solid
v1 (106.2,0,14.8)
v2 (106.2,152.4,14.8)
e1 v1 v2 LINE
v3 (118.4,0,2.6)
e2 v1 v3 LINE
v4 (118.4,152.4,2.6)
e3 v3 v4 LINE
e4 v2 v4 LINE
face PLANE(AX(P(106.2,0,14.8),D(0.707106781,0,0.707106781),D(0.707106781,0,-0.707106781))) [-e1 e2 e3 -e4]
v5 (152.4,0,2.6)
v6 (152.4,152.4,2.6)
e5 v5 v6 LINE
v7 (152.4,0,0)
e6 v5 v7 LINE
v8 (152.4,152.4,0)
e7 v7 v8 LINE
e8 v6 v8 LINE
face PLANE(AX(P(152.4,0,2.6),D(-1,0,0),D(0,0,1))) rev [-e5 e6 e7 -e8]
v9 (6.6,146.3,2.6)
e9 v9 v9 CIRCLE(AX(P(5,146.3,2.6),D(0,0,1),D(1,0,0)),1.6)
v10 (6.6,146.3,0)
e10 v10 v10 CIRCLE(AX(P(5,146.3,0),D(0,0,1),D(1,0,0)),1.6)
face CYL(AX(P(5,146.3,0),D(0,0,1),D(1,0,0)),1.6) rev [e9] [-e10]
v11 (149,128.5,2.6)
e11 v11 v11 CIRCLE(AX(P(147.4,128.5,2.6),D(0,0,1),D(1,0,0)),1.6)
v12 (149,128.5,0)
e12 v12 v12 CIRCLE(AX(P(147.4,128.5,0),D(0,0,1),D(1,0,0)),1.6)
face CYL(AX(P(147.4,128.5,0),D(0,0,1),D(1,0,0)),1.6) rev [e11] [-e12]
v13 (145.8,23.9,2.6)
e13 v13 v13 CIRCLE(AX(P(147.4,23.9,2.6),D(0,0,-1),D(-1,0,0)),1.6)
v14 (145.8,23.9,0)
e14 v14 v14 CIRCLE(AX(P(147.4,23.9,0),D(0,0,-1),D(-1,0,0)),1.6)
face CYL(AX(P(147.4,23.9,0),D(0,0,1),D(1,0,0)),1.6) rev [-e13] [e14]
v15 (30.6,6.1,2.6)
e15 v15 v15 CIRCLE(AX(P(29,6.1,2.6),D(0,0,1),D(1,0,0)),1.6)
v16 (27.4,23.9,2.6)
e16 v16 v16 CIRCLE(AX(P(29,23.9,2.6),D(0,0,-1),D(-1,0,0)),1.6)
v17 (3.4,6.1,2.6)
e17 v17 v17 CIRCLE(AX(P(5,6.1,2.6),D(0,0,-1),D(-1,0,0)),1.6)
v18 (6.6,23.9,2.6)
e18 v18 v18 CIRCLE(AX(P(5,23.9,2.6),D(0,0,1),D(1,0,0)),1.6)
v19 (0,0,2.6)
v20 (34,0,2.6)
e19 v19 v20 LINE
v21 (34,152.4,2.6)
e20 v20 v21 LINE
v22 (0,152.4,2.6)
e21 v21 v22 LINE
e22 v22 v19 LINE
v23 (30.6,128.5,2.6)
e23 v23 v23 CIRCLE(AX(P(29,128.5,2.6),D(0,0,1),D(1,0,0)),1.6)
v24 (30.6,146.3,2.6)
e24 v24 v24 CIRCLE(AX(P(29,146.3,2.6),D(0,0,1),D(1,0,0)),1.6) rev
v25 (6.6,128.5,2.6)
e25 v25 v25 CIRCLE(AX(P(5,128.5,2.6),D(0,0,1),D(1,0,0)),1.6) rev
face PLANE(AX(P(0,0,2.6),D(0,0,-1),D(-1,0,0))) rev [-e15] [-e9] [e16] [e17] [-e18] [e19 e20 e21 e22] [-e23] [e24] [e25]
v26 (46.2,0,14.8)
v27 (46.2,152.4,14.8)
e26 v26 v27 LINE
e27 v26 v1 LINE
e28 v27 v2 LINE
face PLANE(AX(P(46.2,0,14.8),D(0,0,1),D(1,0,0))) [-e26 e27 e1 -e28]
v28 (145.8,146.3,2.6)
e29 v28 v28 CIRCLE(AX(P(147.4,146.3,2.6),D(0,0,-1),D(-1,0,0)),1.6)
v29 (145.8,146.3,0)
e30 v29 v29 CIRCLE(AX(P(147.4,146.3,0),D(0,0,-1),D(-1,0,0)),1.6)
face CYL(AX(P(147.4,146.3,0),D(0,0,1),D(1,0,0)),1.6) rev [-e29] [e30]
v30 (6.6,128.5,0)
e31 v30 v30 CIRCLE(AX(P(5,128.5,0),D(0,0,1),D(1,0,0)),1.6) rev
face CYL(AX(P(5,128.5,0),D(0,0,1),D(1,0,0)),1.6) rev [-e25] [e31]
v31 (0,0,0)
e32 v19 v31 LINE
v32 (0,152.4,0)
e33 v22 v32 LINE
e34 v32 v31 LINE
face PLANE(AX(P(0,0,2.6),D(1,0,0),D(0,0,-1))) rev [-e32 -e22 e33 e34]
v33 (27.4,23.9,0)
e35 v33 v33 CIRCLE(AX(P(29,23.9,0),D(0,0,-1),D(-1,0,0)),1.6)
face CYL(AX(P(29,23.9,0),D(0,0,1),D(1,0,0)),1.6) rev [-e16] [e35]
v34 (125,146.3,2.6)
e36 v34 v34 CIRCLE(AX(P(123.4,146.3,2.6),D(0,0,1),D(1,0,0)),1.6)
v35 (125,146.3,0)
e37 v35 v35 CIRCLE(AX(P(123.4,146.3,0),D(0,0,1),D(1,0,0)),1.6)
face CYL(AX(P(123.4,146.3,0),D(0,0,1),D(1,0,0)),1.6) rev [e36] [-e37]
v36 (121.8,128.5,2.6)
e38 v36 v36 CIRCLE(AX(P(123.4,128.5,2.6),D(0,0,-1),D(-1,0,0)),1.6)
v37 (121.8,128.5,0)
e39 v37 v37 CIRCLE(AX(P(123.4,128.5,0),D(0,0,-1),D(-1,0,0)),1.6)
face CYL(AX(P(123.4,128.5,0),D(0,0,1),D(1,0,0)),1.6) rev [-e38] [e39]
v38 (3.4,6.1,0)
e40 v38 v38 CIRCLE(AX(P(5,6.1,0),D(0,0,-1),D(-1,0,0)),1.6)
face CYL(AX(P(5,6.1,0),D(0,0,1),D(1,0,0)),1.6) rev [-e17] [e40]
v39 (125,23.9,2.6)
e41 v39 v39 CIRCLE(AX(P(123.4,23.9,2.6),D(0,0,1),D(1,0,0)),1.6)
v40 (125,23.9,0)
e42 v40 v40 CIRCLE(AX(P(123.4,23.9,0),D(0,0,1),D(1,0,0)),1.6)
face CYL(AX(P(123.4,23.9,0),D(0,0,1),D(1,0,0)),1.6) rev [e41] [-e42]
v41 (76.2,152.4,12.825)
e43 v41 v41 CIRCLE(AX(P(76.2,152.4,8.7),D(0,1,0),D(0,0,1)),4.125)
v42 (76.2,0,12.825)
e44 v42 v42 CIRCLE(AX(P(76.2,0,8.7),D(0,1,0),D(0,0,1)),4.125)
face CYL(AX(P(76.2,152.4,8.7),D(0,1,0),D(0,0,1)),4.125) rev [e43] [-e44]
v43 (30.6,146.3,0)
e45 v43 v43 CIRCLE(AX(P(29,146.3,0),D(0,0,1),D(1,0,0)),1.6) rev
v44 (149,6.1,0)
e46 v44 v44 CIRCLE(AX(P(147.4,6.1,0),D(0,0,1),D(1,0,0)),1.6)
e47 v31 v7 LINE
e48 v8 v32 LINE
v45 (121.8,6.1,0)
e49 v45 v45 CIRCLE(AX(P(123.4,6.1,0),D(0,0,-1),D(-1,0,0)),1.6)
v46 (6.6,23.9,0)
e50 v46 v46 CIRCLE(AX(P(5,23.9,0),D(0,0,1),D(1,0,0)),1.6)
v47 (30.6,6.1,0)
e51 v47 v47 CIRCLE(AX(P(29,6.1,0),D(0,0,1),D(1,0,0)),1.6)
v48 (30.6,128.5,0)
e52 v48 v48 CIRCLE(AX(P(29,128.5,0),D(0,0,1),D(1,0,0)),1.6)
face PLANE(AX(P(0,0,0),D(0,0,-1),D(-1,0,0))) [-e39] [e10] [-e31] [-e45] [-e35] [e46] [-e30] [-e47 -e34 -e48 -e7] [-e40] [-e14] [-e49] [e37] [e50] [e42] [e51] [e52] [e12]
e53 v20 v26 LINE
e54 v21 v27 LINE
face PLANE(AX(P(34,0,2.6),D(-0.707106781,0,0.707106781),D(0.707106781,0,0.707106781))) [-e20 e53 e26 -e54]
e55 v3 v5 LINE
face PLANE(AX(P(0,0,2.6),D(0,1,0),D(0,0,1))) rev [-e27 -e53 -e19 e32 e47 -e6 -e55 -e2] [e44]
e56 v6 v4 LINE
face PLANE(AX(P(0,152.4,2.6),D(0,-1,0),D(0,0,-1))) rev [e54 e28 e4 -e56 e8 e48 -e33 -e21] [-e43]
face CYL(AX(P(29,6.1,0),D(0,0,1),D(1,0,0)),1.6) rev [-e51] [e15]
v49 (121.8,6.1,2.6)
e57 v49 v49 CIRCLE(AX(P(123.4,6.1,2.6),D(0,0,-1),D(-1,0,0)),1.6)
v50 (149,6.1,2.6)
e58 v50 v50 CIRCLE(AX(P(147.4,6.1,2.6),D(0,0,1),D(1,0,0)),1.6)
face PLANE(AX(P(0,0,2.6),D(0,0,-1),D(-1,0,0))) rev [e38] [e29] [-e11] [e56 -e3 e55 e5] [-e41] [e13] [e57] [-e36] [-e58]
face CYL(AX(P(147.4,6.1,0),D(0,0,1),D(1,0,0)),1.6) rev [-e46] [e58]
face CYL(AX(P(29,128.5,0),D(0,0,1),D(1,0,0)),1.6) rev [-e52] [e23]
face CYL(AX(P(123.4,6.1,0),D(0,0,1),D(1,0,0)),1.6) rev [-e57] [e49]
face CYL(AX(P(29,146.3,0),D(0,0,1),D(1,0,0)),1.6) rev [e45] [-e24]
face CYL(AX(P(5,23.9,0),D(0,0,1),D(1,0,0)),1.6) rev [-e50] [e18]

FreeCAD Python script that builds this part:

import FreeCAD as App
import Part
import Sketcher
Q = App.Units.Quantity

doc = App.newDocument("Part")
body = doc.addObject("PartDesign::Body", "Body")

sketch1 = body.newObject("Sketcher::SketchObject", "Sketch")
sketch1.AttachmentSupport = (doc.getObject("XY_Plane"), [""])
sketch1.MapMode = "FlatFace"
sketch1.addGeometry(Part.LineSegment(App.Vector(0, 152, 0), App.Vector(0, 0, 0)), False)
sketch1.addGeometry(Part.LineSegment(App.Vector(0, 0, 0), App.Vector(152, 0, 0)), False)
sketch1.addGeometry(Part.LineSegment(App.Vector(152, 0, 0), App.Vector(152, 152, 0)), False)
sketch1.addGeometry(Part.LineSegment(App.Vector(152, 152, 0), App.Vector(0, 152, 0)), False)
sketch1.addConstraint(Sketcher.Constraint("Coincident", 0, 2, 1, 1))
sketch1.addConstraint(Sketcher.Constraint("Coincident", 1, 2, 2, 1))
sketch1.addConstraint(Sketcher.Constraint("Coincident", 2, 2, 3, 1))
sketch1.addConstraint(Sketcher.Constraint("Coincident", 3, 2, 0, 1))
sketch1.addConstraint(Sketcher.Constraint("Vertical", 0))
sketch1.addConstraint(Sketcher.Constraint("Horizontal", 1))
sketch1.addConstraint(Sketcher.Constraint("Vertical", 2))
sketch1.addConstraint(Sketcher.Constraint("Horizontal", 3))
sketch1.addConstraint(Sketcher.Constraint("Coincident", 0, 2, -1, 1))
sketch1.addConstraint(Sketcher.Constraint("Equal", 3, 0))
sketch1.addConstraint(Sketcher.Constraint("DistanceX", 1, 1, 1, 2, Q("152.4 mm")))
pad1 = body.newObject("PartDesign::Pad", "Pad")
pad1.Profile = sketch1
pad1.Length = 2.6

sketch2 = body.newObject("Sketcher::SketchObject", "Sketch001")
sketch2.AttachmentSupport = (doc.getObject("XZ_Plane"), [""])
sketch2.MapMode = "FlatFace"
sketch2.AttachmentOffset = App.Placement(App.Vector(0, 0, -152.4), App.Rotation())
sketch2.addGeometry(Part.LineSegment(App.Vector(34, 3, 0), App.Vector(46, 15, 0)), False)
sketch2.addGeometry(Part.LineSegment(App.Vector(46, 15, 0), App.Vector(106, 15, 0)), False)
sketch2.addGeometry(Part.LineSegment(App.Vector(106, 15, 0), App.Vector(118, 3, 0)), False)
sketch2.addGeometry(Part.LineSegment(App.Vector(118, 3, 0), App.Vector(34, 3, 0)), False)
sketch2.addConstraint(Sketcher.Constraint("Coincident", 0, 2, 1, 1))
sketch2.addConstraint(Sketcher.Constraint("Coincident", 1, 2, 2, 1))
sketch2.addConstraint(Sketcher.Constraint("Coincident", 2, 2, 3, 1))
sketch2.addConstraint(Sketcher.Constraint("Coincident", 3, 2, 0, 1))
sketch2.addConstraint(Sketcher.Constraint("Horizontal", 1))
sketch2.addConstraint(Sketcher.Constraint("Horizontal", 3))
sketch2.addConstraint(Sketcher.Constraint("Perpendicular", 0, 2))
sketch2.addConstraint(Sketcher.Constraint("Equal", 0, 2))
sketch2.addConstraint(Sketcher.Constraint("DistanceX", 1, 1, 1, 2, Q("60 mm")))
sketch2.addConstraint(Sketcher.Constraint("DistanceX", 3, 2, 3, 1, Q("84.4 mm")))
sketch2.addConstraint(Sketcher.Constraint("DistanceX", -1, 1, 3, 2, Q("34 mm")))
sketch2.addConstraint(Sketcher.Constraint("DistanceY", -1, 1, 0, 2, Q("14.8 mm")))
pad2 = body.newObject("PartDesign::Pad", "Pad001")
pad2.Profile = sketch2
pad2.Length = 152.4

sketch3 = body.newObject("Sketcher::SketchObject", "Sketch002")
sketch3.AttachmentSupport = (doc.getObject("XZ_Plane"), [""])
sketch3.MapMode = "FlatFace"
sketch3.AttachmentOffset = App.Placement(App.Vector(0, 0, -152.4), App.Rotation())
sketch3.addGeometry(Part.Circle(App.Vector(76.2, 8.7, 0), App.Vector(0, 0, 1), 4.1), False)
sketch3.addConstraint(Sketcher.Constraint("Diameter", 0, Q("8.25 mm")))
sketch3.addConstraint(Sketcher.Constraint("DistanceX", -1, 1, 0, 3, Q("76.2 mm")))
sketch3.addConstraint(Sketcher.Constraint("DistanceY", -1, 1, 0, 3, Q("8.7 mm")))
doc.recompute()
hole = body.newObject("PartDesign::Hole", "Hole")
hole.Profile = sketch3
hole.ThreadType = "None"
hole.Diameter = 8.25
hole.DepthType = "ThroughAll"
hole.Reversed = True

sketch4 = body.newObject("Sketcher::SketchObject", "Sketch003")
sketch4.AttachmentSupport = (doc.getObject("XY_Plane"), [""])
sketch4.MapMode = "FlatFace"
sketch4.AttachmentOffset = App.Placement(App.Vector(0, 0, 2.6), App.Rotation())
sketch4.addGeometry(Part.Circle(App.Vector(5, 128.5, 0), App.Vector(0, 0, 1), 1.6), False)
sketch4.addGeometry(Part.Circle(App.Vector(29, 146.3, 0), App.Vector(0, 0, 1), 1.6), False)
sketch4.addGeometry(Part.Circle(App.Vector(5, 146.3, 0), App.Vector(0, 0, 1), 1.6), False)
sketch4.addGeometry(Part.Circle(App.Vector(29, 128.5, 0), App.Vector(0, 0, 1), 1.6), False)
sketch4.addGeometry(Part.Circle(App.Vector(123.4, 146.3, 0), App.Vector(0, 0, 1), 1.6), False)
sketch4.addGeometry(Part.Circle(App.Vector(147.4, 146.3, 0), App.Vector(0, 0, 1), 1.6), False)
sketch4.addGeometry(Part.Circle(App.Vector(147.4, 128.5, 0), App.Vector(0, 0, 1), 1.6), False)
sketch4.addGeometry(Part.Circle(App.Vector(123.4, 128.5, 0), App.Vector(0, 0, 1), 1.6), False)
sketch4.addGeometry(Part.Circle(App.Vector(123.4, 23.9, 0), App.Vector(0, 0, 1), 1.6), False)
sketch4.addGeometry(Part.Circle(App.Vector(147.4, 23.9, 0), App.Vector(0, 0, 1), 1.6), False)
sketch4.addGeometry(Part.Circle(App.Vector(147.4, 6.1, 0), App.Vector(0, 0, 1), 1.6), False)
sketch4.addGeometry(Part.Circle(App.Vector(123.4, 6.1, 0), App.Vector(0, 0, 1), 1.6), False)
sketch4.addGeometry(Part.Circle(App.Vector(5, 23.9, 0), App.Vector(0, 0, 1), 1.6), False)
sketch4.addGeometry(Part.Circle(App.Vector(29, 23.9, 0), App.Vector(0, 0, 1), 1.6), False)
sketch4.addGeometry(Part.Circle(App.Vector(29, 6.1, 0), App.Vector(0, 0, 1), 1.6), False)
sketch4.addGeometry(Part.Circle(App.Vector(5, 6.1, 0), App.Vector(0, 0, 1), 1.6), False)
sketch4.addConstraint(Sketcher.Constraint("Equal", 0, 1))
sketch4.addConstraint(Sketcher.Constraint("Equal", 1, 2))
sketch4.addConstraint(Sketcher.Constraint("Equal", 2, 3))
sketch4.addConstraint(Sketcher.Constraint("Equal", 3, 4))
sketch4.addConstraint(Sketcher.Constraint("Equal", 4, 5))
sketch4.addConstraint(Sketcher.Constraint("Equal", 5, 6))
sketch4.addConstraint(Sketcher.Constraint("Equal", 6, 7))
sketch4.addConstraint(Sketcher.Constraint("Equal", 7, 8))
sketch4.addConstraint(Sketcher.Constraint("Equal", 8, 9))
sketch4.addConstraint(Sketcher.Constraint("Equal", 9, 10))
sketch4.addConstraint(Sketcher.Constraint("Equal", 10, 11))
sketch4.addConstraint(Sketcher.Constraint("Equal", 11, 12))
sketch4.addConstraint(Sketcher.Constraint("Equal", 12, 13))
sketch4.addConstraint(Sketcher.Constraint("Equal", 13, 14))
sketch4.addConstraint(Sketcher.Constraint("Equal", 14, 15))
sketch4.addConstraint(Sketcher.Constraint("Horizontal", 1, 3, 2, 3))
sketch4.addConstraint(Sketcher.Constraint("Horizontal", 0, 3, 3, 3))
sketch4.addConstraint(Sketcher.Constraint("Horizontal", 2, 3, 4, 3))
sketch4.addConstraint(Sketcher.Constraint("Horizontal", 4, 3, 5, 3))
sketch4.addConstraint(Sketcher.Constraint("Horizontal", 3, 3, 6, 3))
sketch4.addConstraint(Sketcher.Constraint("Horizontal", 6, 3, 7, 3))
sketch4.addConstraint(Sketcher.Constraint("Horizontal", 8, 3, 9, 3))
sketch4.addConstraint(Sketcher.Constraint("Horizontal", 10, 3, 11, 3))
sketch4.addConstraint(Sketcher.Constraint("Horizontal", 9, 3, 12, 3))
sketch4.addConstraint(Sketcher.Constraint("Horizontal", 12, 3, 13, 3))
sketch4.addConstraint(Sketcher.Constraint("Horizontal", 11, 3, 14, 3))
sketch4.addConstraint(Sketcher.Constraint("Horizontal", 14, 3, 15, 3))
sketch4.addConstraint(Sketcher.Constraint("Vertical", 0, 3, 2, 3))
sketch4.addConstraint(Sketcher.Constraint("Vertical", 1, 3, 3, 3))
sketch4.addConstraint(Sketcher.Constraint("Vertical", 5, 3, 6, 3))
sketch4.addConstraint(Sketcher.Constraint("Vertical", 4, 3, 7, 3))
sketch4.addConstraint(Sketcher.Constraint("Vertical", 7, 3, 8, 3))
sketch4.addConstraint(Sketcher.Constraint("Vertical", 6, 3, 9, 3))
sketch4.addConstraint(Sketcher.Constraint("Vertical", 9, 3, 10, 3))
sketch4.addConstraint(Sketcher.Constraint("Vertical", 8, 3, 11, 3))
sketch4.addConstraint(Sketcher.Constraint("Vertical", 2, 3, 12, 3))
sketch4.addConstraint(Sketcher.Constraint("Vertical", 3, 3, 13, 3))
sketch4.addConstraint(Sketcher.Constraint("Vertical", 13, 3, 14, 3))
sketch4.addConstraint(Sketcher.Constraint("Vertical", 12, 3, 15, 3))
sketch4.addConstraint(Sketcher.Constraint("Diameter", 0, Q("3.2 mm")))
sketch4.addConstraint(Sketcher.Constraint("DistanceX", -1, 1, 0, 3, Q("5 mm")))
sketch4.addConstraint(Sketcher.Constraint("DistanceX", -1, 1, 1, 3, Q("29 mm")))
sketch4.addConstraint(Sketcher.Constraint("DistanceX", 4, 3, 5, 3, Q("24 mm")))
sketch4.addConstraint(Sketcher.Constraint("DistanceY", -1, 1, 0, 3, Q("128.5 mm")))
sketch4.addConstraint(Sketcher.Constraint("DistanceY", -1, 1, 1, 3, Q("146.3 mm")))
sketch4.addConstraint(Sketcher.Constraint("DistanceX", -1, 1, 4, 3, Q("123.4 mm")))
sketch4.addConstraint(Sketcher.Constraint("DistanceY", -1, 1, 8, 3, Q("23.9 mm")))
sketch4.addConstraint(Sketcher.Constraint("DistanceY", -1, 1, 10, 3, Q("6.1 mm")))
pocket1 = body.newObject("PartDesign::Pocket", "Pocket")
pocket1.Profile = sketch4
pocket1.Type = "ThroughAll"

doc.recompute()
